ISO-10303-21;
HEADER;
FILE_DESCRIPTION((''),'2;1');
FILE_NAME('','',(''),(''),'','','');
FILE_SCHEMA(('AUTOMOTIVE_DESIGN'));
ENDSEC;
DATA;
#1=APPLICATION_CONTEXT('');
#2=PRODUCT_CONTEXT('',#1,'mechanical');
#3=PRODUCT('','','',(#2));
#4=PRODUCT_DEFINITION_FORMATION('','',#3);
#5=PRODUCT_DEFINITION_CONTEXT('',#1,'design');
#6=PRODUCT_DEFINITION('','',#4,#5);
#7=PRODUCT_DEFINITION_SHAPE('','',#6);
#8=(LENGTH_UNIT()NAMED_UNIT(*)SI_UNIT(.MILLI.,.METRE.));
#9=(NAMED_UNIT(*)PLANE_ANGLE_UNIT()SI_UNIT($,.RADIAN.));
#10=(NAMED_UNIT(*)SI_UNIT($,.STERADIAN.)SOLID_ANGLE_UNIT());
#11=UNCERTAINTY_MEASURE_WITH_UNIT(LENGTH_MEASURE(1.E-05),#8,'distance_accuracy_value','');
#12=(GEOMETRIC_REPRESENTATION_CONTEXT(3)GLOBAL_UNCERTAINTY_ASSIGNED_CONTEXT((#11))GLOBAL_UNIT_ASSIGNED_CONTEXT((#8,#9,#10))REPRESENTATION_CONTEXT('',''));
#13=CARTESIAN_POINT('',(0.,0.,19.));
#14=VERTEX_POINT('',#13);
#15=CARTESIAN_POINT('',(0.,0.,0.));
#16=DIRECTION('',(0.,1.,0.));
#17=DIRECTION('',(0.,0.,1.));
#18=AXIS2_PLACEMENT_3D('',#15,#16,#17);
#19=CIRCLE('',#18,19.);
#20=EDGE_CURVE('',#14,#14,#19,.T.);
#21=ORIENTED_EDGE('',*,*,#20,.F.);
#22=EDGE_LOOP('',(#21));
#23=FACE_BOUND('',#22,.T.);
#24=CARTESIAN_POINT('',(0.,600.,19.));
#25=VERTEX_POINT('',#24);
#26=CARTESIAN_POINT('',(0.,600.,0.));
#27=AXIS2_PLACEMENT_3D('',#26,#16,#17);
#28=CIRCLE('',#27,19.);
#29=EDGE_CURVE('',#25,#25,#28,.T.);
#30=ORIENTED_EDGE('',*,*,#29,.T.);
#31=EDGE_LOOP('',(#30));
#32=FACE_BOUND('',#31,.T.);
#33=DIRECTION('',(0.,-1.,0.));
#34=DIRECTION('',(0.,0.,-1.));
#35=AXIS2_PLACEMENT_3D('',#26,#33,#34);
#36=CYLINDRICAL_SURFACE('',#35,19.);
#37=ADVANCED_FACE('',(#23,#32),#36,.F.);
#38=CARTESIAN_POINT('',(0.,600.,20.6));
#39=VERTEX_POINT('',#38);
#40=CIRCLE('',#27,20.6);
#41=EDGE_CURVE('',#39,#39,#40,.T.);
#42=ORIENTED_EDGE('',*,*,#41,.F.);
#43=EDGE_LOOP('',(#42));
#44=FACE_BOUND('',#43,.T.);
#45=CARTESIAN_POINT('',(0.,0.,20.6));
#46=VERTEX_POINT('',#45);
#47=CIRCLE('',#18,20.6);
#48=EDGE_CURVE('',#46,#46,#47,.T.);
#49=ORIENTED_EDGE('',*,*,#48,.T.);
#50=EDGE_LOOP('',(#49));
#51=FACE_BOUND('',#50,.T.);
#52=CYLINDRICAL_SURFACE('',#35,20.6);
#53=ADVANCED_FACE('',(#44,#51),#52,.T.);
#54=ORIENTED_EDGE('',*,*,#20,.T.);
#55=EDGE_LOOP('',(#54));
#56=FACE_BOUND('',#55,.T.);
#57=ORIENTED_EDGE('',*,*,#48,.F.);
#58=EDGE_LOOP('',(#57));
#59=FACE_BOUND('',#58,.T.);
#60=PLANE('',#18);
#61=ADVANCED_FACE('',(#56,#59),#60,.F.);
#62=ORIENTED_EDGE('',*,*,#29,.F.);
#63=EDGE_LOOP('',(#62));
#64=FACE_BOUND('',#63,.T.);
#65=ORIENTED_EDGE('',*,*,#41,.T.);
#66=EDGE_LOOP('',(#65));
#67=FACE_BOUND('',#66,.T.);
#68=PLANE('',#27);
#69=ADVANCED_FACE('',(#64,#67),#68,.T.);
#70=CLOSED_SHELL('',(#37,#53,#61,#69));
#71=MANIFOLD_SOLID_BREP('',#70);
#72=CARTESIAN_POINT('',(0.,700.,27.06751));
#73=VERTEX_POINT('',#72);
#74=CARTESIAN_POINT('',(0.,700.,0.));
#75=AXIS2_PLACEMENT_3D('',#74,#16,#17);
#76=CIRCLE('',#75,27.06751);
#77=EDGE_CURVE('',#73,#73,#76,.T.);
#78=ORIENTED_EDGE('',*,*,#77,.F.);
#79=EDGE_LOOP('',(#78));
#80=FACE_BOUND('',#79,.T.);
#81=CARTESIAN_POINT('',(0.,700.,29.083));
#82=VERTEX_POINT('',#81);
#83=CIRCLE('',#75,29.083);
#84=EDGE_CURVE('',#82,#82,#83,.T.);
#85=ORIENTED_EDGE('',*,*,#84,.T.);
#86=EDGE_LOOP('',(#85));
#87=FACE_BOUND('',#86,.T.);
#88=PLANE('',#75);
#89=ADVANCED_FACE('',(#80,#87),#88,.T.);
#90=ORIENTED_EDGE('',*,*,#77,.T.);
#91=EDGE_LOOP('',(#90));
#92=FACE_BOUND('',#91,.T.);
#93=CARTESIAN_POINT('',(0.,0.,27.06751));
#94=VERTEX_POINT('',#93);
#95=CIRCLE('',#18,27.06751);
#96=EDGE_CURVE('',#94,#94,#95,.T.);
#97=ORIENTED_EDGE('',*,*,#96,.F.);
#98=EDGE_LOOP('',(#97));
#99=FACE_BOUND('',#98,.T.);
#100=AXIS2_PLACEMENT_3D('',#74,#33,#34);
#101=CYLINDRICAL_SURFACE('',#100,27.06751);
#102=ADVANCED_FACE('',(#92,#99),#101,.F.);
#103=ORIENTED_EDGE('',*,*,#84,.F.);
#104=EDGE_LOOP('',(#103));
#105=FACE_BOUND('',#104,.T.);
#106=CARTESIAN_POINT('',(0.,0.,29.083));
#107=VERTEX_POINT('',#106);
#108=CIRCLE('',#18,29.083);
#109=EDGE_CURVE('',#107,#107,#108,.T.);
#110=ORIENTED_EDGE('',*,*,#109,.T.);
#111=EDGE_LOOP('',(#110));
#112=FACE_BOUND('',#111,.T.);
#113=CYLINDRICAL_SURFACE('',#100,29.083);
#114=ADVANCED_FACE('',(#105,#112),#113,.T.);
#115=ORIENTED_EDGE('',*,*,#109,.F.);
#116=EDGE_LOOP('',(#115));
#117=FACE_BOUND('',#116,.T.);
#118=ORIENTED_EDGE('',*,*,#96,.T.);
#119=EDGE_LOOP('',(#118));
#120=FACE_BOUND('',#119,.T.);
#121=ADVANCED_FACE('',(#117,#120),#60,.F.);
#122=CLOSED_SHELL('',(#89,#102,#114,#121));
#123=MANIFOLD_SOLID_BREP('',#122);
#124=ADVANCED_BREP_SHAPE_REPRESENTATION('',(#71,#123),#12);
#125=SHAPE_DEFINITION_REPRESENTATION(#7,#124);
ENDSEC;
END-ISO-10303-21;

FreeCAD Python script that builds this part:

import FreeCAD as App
import Part
import Sketcher

V = App.Vector

doc = App.newDocument("Part")
body = doc.addObject("PartDesign::Body", "Body")

# Sketch on XZ plane
sketch1 = body.newObject("Sketcher::SketchObject", "Sketch")
sketch1.AttachmentSupport = (doc.getObject("XZ_Plane"), [""])
sketch1.MapMode = "FlatFace"
sketch1.addGeometry([
    Part.Circle(V(0, 0, 0), V(0, 0, 1), 29),
    Part.Circle(V(0, 0, 0), V(0, 0, 1), 27),
], False)
sketch1.addConstraint([
    Sketcher.Constraint("Coincident", 0, 3, -1, 1),
    Sketcher.Constraint("Coincident", 1, 3, -1, 1),
    Sketcher.Constraint("Diameter", 0, 58.166),
    Sketcher.Constraint("Diameter", 1, 54.13502),
])
pad1 = body.newObject("PartDesign::Pad", "Pad")
pad1.Profile = sketch1
pad1.Length = 700
pad1.Reversed = True
body2 = doc.addObject("PartDesign::Body", "Body001")

# Sketch on XZ plane
sketch2 = body2.newObject("Sketcher::SketchObject", "Sketch001")
sketch2.AttachmentSupport = (doc.getObject("XZ_Plane001"), [""])
sketch2.MapMode = "FlatFace"
sketch2.addGeometry([
    Part.Circle(V(0, 0, 0), V(0, 0, 1), 21),
    Part.Circle(V(0, 0, 0), V(0, 0, 1), 19),
], False)
sketch2.addConstraint([
    Sketcher.Constraint("Coincident", 0, 3, -1, 1),
    Sketcher.Constraint("Coincident", 1, 3, -1, 1),
    Sketcher.Constraint("Diameter", 1, 38.0),
    Sketcher.Constraint("Diameter", 0, 41.2),
])
pad2 = body2.newObject("PartDesign::Pad", "Pad001")
pad2.Profile = sketch2
pad2.Length = 600
pad2.Reversed = True

doc.recompute()
